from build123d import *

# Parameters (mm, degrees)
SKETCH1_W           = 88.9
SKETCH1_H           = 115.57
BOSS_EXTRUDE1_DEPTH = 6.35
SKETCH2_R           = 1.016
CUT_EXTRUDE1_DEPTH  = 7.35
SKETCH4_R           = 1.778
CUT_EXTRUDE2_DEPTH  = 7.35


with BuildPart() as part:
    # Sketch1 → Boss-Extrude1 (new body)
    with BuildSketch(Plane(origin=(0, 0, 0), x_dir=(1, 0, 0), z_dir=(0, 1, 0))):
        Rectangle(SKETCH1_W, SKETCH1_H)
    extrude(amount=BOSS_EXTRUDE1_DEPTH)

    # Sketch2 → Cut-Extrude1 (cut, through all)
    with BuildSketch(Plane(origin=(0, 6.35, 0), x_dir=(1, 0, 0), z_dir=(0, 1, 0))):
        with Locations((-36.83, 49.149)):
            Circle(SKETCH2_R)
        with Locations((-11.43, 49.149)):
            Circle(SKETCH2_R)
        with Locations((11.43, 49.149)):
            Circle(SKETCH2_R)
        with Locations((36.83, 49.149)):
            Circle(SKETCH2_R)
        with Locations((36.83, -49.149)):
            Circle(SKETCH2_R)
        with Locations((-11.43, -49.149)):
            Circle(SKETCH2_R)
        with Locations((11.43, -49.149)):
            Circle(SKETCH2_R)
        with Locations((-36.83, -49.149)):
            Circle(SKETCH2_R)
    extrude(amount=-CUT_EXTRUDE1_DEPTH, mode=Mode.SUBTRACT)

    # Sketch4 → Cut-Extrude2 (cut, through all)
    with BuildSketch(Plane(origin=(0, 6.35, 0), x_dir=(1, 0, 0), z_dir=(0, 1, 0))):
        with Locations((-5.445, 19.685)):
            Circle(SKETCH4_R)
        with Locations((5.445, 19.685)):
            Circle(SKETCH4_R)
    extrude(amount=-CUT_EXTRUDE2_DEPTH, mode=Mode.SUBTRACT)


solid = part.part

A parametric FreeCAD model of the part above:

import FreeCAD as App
import Part
import Sketcher
from FreeCAD import Vector
Q = App.Units.Quantity


def add_polygon(sketch, points):
    """Adds a closed chain of lines whose ends are joined by coincident constraints."""
    first, n = sketch.GeometryCount, len(points)
    for a, b in zip(points, points[1:] + points[:1]):
        sketch.addGeometry(Part.LineSegment(App.Vector(*a, 0), App.Vector(*b, 0)), False)
    for i in range(n):
        sketch.addConstraint(Sketcher.Constraint("Coincident", first + i, 2, first + (i + 1) % n, 1))

doc = App.newDocument("Part")
params = doc.addObject("Spreadsheet::Sheet", "Params")
for row, (alias, value) in enumerate([
    ("sketch1_width", "3.5 in"),
    ("sketch1_height", "4.55 in"),
    ("pad1_length", "0.25 in"),
    ("sketch2_diameter", "0.08 in"),
    ("sketch3_diameter", "0.14 in"),
], start=1):
    params.set(f"A{row}", alias)
    params.set(f"B{row}", "=" + value)
    params.setAlias(f"B{row}", alias)

body = doc.addObject("PartDesign::Body", "Body")

# Sketch on XZ plane
sketch1 = body.newObject("Sketcher::SketchObject", "Sketch")
sketch1.AttachmentSupport = (doc.getObject("XZ_Plane"), [""])
sketch1.MapMode = "FlatFace"
add_polygon(sketch1, [(-44, -58), (-44, 58), (44, 58), (44, -58)])  # lines 0-3
sketch1.addConstraint([
    Sketcher.Constraint("Vertical", 0),
    Sketcher.Constraint("Horizontal", 1),
    Sketcher.Constraint("Vertical", 2),
    Sketcher.Constraint("Horizontal", 3),
    Sketcher.Constraint("Symmetric", 0, 2, 2, 2, -1, 1),
    Sketcher.Constraint("DistanceX", 1, 1, 1, 2, Q("3.5 in")),
    Sketcher.Constraint("DistanceY", 0, 1, 0, 2, Q("4.55 in")),
])
sketch1.setExpression("Constraints[9]", "Params.sketch1_width")
sketch1.setExpression("Constraints[10]", "Params.sketch1_height")
pad1 = body.newObject("PartDesign::Pad", "Pad")
pad1.Profile = sketch1
pad1.setExpression("Length", "Params.pad1_length")
pad1.Reversed = True

# Sketch on XZ plane
sketch2 = body.newObject("Sketcher::SketchObject", "Sketch001")
sketch2.AttachmentSupport = (doc.getObject("XZ_Plane"), [""])
sketch2.MapMode = "FlatFace"
sketch2.AttachmentOffset = App.Placement(Vector(0, 0, -0.25 * 25.4), App.Rotation())
sketch2.addGeometry([
    Part.Circle(Vector(-36.8, -49.1, 0), Vector(0, 0, 1), 1),  # 0
    Part.Circle(Vector(-11.4, -49.1, 0), Vector(0, 0, 1), 1),  # 1
    Part.Circle(Vector(11.4, -49.1, 0), Vector(0, 0, 1), 1),  # 2
    Part.Circle(Vector(36.8, -49.1, 0), Vector(0, 0, 1), 1),  # 3
    Part.Circle(Vector(36.8, 49.1, 0), Vector(0, 0, 1), 1),  # 4
    Part.Circle(Vector(-11.4, 49.1, 0), Vector(0, 0, 1), 1),  # 5
    Part.Circle(Vector(11.4, 49.1, 0), Vector(0, 0, 1), 1),  # 6
    Part.Circle(Vector(-36.8, 49.1, 0), Vector(0, 0, 1), 1),  # 7
], False)
sketch2.addConstraint([
    Sketcher.Constraint("Equal", 0, 1),
    Sketcher.Constraint("Equal", 1, 2),
    Sketcher.Constraint("Equal", 2, 3),
    Sketcher.Constraint("Equal", 3, 4),
    Sketcher.Constraint("Equal", 4, 5),
    Sketcher.Constraint("Equal", 5, 6),
    Sketcher.Constraint("Equal", 6, 7),
    Sketcher.Constraint("Symmetric", 0, 3, 4, 3, -1, 1),
    Sketcher.Constraint("Symmetric", 2, 3, 5, 3, -1, 1),
    Sketcher.Constraint("Symmetric", 1, 3, 6, 3, -1, 1),
    Sketcher.Constraint("Symmetric", 3, 3, 7, 3, -1, 1),
    Sketcher.Constraint("Symmetric", 1, 3, 2, 3, -2),
    Sketcher.Constraint("Symmetric", 0, 3, 3, 3, -2),
    Sketcher.Constraint("Horizontal", 0, 3, 1, 3),
    Sketcher.Constraint("Diameter", 0, Q("0.08 in")),
    Sketcher.Constraint("DistanceX", 0, 3, 1, 3, Q("1 in")),
    Sketcher.Constraint("DistanceX", 1, 3, 2, 3, Q("0.9 in")),
    Sketcher.Constraint("DistanceY", 3, 3, 4, 3, Q("3.87 in")),
])
sketch2.setExpression("Constraints[14]", "Params.sketch2_diameter")
pocket1 = body.newObject("PartDesign::Pocket", "Pocket")
pocket1.Profile = sketch2
pocket1.Type = "ThroughAll"
pocket1.Reversed = True

# Sketch on XZ plane
sketch3 = body.newObject("Sketcher::SketchObject", "Sketch002")
sketch3.AttachmentSupport = (doc.getObject("XZ_Plane"), [""])
sketch3.MapMode = "FlatFace"
sketch3.AttachmentOffset = App.Placement(Vector(0, 0, -0.25 * 25.4), App.Rotation())
sketch3.addGeometry([
    Part.Circle(Vector(-5.4, -19.7, 0), Vector(0, 0, 1), 1.8),
    Part.Circle(Vector(5.4, -19.7, 0), Vector(0, 0, 1), 1.8),
], False)
sketch3.addConstraint([
    Sketcher.Constraint("Equal", 0, 1),
    Sketcher.Constraint("Symmetric", 0, 3, 1, 3, -2),
    Sketcher.Constraint("Diameter", 0, Q("0.14 in")),
    Sketcher.Constraint("DistanceY", 0, 3, -1, 1, Q("0.775 in")),
    Sketcher.Constraint("DistanceX", 0, 3, -1, 1, Q("5.445 mm")),
])
sketch3.setExpression("Constraints[2]", "Params.sketch3_diameter")
pocket2 = body.newObject("PartDesign::Pocket", "Pocket001")
pocket2.Profile = sketch3
pocket2.Type = "ThroughAll"
pocket2.Reversed = True

doc.recompute()
